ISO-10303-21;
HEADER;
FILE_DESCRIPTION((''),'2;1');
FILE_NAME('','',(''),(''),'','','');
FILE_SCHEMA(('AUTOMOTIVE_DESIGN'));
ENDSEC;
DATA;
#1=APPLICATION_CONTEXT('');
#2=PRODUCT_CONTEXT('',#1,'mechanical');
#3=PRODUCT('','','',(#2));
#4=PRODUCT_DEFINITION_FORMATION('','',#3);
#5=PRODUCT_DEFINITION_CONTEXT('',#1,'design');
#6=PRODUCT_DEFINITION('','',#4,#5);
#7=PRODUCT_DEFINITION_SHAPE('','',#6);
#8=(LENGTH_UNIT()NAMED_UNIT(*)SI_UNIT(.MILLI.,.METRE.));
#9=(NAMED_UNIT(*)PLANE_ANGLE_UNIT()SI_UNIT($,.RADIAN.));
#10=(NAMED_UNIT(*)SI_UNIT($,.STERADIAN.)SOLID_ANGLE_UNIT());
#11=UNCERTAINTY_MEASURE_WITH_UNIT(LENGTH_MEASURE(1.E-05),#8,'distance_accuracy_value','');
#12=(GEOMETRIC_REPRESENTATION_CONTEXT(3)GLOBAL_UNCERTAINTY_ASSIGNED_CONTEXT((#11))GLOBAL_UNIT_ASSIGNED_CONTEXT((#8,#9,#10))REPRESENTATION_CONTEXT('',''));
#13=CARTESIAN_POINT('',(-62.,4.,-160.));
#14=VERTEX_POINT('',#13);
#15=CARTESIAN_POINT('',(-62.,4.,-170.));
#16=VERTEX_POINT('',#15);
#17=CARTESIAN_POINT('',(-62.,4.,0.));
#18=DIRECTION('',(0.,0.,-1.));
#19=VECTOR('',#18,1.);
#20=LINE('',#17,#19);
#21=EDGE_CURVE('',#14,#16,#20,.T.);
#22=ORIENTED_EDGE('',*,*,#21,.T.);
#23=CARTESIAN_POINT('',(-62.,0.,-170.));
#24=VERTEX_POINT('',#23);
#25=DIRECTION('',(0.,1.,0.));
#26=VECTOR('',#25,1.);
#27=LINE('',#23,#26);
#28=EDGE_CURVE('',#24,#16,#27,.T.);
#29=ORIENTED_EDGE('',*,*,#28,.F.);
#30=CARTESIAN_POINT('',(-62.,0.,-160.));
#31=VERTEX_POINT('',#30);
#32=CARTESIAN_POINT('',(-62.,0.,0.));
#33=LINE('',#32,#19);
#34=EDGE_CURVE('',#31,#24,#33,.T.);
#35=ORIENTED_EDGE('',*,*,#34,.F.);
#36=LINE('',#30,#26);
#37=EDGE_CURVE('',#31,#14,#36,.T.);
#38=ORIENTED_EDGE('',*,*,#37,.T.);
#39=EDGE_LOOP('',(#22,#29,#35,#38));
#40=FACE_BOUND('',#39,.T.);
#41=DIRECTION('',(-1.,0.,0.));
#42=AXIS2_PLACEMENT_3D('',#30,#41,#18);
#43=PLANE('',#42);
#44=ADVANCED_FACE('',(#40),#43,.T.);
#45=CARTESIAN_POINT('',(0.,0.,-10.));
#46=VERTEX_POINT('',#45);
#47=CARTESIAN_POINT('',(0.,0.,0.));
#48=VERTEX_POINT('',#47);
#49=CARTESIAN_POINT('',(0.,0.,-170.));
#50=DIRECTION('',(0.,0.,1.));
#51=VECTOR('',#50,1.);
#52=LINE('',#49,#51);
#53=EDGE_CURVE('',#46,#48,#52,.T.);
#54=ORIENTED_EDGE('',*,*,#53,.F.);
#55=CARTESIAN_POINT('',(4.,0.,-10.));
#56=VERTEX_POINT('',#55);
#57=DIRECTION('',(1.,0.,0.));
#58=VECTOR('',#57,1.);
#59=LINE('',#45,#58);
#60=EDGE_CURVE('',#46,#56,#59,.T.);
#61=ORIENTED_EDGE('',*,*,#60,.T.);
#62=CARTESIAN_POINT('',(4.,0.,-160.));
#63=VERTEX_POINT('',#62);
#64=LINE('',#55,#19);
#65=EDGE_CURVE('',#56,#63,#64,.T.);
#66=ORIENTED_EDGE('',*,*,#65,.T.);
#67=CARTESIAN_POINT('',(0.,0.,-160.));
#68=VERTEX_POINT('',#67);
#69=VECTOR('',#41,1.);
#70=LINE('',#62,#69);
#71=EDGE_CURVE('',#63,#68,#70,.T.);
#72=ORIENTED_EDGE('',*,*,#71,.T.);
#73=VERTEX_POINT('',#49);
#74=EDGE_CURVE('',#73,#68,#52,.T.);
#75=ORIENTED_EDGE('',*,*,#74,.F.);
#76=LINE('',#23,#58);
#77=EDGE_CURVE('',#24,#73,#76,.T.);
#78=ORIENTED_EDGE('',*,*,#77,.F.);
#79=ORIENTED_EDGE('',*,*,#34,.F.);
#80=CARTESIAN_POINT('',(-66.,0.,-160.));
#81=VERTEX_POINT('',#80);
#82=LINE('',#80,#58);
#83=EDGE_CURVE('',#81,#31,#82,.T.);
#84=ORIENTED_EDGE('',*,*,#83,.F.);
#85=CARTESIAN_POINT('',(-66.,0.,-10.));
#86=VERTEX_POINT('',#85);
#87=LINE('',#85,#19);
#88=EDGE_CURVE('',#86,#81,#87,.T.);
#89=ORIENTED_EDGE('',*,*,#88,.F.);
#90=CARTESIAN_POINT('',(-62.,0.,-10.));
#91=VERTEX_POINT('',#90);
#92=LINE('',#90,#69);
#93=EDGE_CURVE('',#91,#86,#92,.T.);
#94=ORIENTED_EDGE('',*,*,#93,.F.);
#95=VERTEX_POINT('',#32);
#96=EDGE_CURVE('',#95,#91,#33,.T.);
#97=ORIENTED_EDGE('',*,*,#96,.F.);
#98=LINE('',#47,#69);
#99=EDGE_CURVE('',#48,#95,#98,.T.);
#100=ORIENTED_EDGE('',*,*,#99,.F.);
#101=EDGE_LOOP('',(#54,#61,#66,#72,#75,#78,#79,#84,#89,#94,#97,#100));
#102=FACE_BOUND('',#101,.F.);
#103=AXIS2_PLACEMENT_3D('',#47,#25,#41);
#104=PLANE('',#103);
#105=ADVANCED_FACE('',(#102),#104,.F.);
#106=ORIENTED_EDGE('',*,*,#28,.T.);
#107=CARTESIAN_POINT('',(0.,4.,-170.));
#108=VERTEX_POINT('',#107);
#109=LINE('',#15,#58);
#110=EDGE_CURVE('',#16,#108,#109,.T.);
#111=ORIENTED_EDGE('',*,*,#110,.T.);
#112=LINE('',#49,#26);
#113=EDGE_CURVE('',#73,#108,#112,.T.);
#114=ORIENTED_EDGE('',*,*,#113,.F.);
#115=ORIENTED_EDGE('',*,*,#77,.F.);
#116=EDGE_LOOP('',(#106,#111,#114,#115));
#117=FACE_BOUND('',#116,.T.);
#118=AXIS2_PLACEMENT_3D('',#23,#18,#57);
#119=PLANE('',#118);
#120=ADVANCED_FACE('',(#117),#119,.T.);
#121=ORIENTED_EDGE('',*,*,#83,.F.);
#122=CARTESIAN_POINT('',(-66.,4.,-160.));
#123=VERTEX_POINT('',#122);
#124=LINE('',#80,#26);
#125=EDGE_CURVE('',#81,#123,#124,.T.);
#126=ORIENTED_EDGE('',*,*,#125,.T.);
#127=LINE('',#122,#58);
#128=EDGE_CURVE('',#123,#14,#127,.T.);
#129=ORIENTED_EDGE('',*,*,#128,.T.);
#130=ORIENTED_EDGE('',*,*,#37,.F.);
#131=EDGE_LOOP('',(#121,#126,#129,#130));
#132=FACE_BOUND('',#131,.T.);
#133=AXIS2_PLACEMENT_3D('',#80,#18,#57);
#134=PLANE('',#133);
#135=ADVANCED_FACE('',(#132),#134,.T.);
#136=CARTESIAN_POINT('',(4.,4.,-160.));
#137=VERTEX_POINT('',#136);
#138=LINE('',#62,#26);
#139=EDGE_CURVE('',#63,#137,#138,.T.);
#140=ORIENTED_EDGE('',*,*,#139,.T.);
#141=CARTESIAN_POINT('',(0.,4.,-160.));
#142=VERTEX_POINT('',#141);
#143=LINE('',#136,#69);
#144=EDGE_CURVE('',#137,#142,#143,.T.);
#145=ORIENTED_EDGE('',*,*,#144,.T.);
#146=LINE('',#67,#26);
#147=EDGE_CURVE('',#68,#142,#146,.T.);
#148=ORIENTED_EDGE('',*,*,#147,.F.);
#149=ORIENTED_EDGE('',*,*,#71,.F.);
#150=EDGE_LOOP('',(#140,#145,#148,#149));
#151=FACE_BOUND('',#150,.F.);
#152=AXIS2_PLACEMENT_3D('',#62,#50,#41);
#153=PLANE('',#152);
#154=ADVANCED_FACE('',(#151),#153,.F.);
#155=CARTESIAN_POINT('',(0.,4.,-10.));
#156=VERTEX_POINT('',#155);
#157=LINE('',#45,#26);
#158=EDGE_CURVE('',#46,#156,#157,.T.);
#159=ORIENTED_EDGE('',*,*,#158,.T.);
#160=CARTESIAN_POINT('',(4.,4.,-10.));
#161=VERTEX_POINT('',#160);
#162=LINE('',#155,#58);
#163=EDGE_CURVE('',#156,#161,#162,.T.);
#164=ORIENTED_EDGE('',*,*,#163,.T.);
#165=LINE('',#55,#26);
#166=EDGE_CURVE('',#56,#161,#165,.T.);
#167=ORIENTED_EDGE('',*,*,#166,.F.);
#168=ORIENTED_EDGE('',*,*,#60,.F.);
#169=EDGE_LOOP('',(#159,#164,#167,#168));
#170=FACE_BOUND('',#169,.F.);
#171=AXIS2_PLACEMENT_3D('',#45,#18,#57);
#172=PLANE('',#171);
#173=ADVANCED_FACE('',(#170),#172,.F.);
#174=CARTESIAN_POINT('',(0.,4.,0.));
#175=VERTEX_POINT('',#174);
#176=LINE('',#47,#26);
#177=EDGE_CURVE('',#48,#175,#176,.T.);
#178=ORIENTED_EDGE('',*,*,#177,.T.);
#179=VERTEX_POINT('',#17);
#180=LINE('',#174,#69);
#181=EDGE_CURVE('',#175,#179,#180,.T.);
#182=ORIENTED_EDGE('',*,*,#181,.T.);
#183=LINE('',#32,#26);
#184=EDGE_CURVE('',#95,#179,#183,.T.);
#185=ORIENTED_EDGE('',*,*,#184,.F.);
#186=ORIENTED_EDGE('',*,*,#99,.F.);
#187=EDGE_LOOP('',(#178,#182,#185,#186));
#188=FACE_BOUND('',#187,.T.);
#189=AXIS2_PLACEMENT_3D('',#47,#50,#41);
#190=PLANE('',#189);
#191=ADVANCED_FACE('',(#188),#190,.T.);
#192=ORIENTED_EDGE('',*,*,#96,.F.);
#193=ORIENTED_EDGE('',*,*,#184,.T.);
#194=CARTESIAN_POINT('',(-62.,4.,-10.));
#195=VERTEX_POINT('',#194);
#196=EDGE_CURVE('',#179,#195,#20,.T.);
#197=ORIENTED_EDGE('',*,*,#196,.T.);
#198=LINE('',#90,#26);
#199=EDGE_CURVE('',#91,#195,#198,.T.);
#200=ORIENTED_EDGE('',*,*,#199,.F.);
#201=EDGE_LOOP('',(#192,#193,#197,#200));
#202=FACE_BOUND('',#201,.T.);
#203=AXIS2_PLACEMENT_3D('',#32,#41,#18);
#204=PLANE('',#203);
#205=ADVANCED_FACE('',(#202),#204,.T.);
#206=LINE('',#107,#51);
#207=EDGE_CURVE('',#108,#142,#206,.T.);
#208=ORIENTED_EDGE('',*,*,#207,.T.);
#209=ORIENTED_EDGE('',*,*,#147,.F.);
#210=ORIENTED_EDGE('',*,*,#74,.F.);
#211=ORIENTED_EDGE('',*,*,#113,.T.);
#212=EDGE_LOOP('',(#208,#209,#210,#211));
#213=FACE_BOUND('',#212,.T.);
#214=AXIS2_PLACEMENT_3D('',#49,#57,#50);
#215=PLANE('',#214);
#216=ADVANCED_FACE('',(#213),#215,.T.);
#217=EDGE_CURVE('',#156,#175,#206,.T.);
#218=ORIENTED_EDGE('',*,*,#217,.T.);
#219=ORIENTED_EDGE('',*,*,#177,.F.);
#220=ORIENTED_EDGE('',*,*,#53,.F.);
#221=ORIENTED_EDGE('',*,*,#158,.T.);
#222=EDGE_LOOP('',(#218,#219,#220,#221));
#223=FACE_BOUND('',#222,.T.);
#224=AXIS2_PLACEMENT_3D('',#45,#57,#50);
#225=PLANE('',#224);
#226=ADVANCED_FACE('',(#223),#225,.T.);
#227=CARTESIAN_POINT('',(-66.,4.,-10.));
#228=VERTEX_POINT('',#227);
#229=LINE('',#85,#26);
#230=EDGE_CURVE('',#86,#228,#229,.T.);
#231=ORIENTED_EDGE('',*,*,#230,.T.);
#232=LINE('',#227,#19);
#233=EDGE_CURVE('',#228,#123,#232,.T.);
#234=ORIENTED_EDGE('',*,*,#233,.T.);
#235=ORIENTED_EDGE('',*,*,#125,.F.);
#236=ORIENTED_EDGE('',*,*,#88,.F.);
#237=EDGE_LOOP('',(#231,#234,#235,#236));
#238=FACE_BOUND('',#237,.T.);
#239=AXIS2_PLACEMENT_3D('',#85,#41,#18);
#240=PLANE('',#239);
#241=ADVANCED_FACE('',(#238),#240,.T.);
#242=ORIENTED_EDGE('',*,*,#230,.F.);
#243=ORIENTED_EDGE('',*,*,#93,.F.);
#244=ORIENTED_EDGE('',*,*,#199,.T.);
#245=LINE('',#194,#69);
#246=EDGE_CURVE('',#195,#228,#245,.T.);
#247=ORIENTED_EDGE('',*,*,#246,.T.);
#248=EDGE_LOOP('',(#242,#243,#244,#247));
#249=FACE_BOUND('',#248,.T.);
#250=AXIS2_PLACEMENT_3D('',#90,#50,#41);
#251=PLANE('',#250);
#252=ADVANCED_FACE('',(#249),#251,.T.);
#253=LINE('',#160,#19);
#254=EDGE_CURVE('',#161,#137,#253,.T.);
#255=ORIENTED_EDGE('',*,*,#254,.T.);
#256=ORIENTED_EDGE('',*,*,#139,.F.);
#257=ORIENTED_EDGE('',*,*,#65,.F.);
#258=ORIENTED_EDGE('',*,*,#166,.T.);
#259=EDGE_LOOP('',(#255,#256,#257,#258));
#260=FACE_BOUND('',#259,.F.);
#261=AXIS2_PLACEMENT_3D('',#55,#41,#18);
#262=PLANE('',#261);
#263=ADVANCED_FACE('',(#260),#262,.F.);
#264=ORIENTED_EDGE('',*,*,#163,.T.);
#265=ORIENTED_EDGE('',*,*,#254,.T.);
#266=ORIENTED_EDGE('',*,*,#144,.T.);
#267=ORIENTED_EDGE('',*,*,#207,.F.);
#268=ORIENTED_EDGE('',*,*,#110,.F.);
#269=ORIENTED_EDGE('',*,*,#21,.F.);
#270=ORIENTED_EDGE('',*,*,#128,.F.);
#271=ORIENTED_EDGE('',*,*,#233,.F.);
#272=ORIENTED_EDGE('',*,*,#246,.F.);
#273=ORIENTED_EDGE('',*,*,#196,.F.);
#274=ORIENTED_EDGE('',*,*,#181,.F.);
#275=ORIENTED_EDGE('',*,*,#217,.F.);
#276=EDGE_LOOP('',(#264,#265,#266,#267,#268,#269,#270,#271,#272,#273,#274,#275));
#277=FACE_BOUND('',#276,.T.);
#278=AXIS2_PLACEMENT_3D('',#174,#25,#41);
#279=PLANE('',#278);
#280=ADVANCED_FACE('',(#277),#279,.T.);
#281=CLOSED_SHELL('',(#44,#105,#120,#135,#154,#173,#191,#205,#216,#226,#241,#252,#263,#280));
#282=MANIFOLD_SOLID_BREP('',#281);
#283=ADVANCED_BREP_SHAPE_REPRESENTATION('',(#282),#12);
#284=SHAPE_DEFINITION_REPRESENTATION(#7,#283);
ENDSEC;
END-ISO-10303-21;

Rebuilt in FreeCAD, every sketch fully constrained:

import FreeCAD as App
import Part
import Sketcher
from FreeCAD import Vector
Q = App.Units.Quantity

doc = App.newDocument("Part")
body = doc.addObject("PartDesign::Body", "Body")

sketch1 = body.newObject("Sketcher::SketchObject", "Sketch")
sketch1.AttachmentSupport = (doc.getObject("XZ_Plane"), [""])
sketch1.MapMode = "FlatFace"
sketch1.addGeometry(Part.LineSegment(Vector(-62, 0, 0), Vector(0, 0, 0)), False)
sketch1.addGeometry(Part.LineSegment(Vector(0, 0, 0), Vector(0, -10, 0)), False)
sketch1.addGeometry(Part.LineSegment(Vector(0, -10, 0), Vector(4, -10, 0)), False)
sketch1.addGeometry(Part.LineSegment(Vector(4, -10, 0), Vector(4, -160, 0)), False)
sketch1.addGeometry(Part.LineSegment(Vector(4, -160, 0), Vector(0, -160, 0)), False)
sketch1.addGeometry(Part.LineSegment(Vector(0, -160, 0), Vector(0, -170, 0)), False)
sketch1.addGeometry(Part.LineSegment(Vector(0, -170, 0), Vector(-62, -170, 0)), False)
sketch1.addGeometry(Part.LineSegment(Vector(-62, -170, 0), Vector(-62, -160, 0)), False)
sketch1.addGeometry(Part.LineSegment(Vector(-62, -160, 0), Vector(-66, -160, 0)), False)
sketch1.addGeometry(Part.LineSegment(Vector(-66, -160, 0), Vector(-66, -10, 0)), False)
sketch1.addGeometry(Part.LineSegment(Vector(-66, -10, 0), Vector(-62, -10, 0)), False)
sketch1.addGeometry(Part.LineSegment(Vector(-62, -10, 0), Vector(-62, 0, 0)), False)
sketch1.addConstraint(Sketcher.Constraint("Coincident", 0, 2, 1, 1))
sketch1.addConstraint(Sketcher.Constraint("Coincident", 1, 2, 2, 1))
sketch1.addConstraint(Sketcher.Constraint("Coincident", 2, 2, 3, 1))
sketch1.addConstraint(Sketcher.Constraint("Coincident", 3, 2, 4, 1))
sketch1.addConstraint(Sketcher.Constraint("Coincident", 4, 2, 5, 1))
sketch1.addConstraint(Sketcher.Constraint("Coincident", 5, 2, 6, 1))
sketch1.addConstraint(Sketcher.Constraint("Coincident", 6, 2, 7, 1))
sketch1.addConstraint(Sketcher.Constraint("Coincident", 7, 2, 8, 1))
sketch1.addConstraint(Sketcher.Constraint("Coincident", 8, 2, 9, 1))
sketch1.addConstraint(Sketcher.Constraint("Coincident", 9, 2, 10, 1))
sketch1.addConstraint(Sketcher.Constraint("Coincident", 10, 2, 11, 1))
sketch1.addConstraint(Sketcher.Constraint("Coincident", 11, 2, 0, 1))
sketch1.addConstraint(Sketcher.Constraint("Horizontal", 0))
sketch1.addConstraint(Sketcher.Constraint("Vertical", 1))
sketch1.addConstraint(Sketcher.Constraint("Horizontal", 2))
sketch1.addConstraint(Sketcher.Constraint("Vertical", 3))
sketch1.addConstraint(Sketcher.Constraint("Horizontal", 4))
sketch1.addConstraint(Sketcher.Constraint("Vertical", 5))
sketch1.addConstraint(Sketcher.Constraint("Horizontal", 6))
sketch1.addConstraint(Sketcher.Constraint("Vertical", 7))
sketch1.addConstraint(Sketcher.Constraint("Horizontal", 8))
sketch1.addConstraint(Sketcher.Constraint("Vertical", 9))
sketch1.addConstraint(Sketcher.Constraint("Horizontal", 10))
sketch1.addConstraint(Sketcher.Constraint("Vertical", 11))
sketch1.addConstraint(Sketcher.Constraint("Coincident", 0, 2, -1, 1))
sketch1.addConstraint(Sketcher.Constraint("PointOnObject", 4, 2, -2))
sketch1.addConstraint(Sketcher.Constraint("Horizontal", 4, 2, 7, 2))
sketch1.addConstraint(Sketcher.Constraint("Horizontal", 2, 2, 9, 2))
sketch1.addConstraint(Sketcher.Constraint("Vertical", 7, 2, 10, 2))
sketch1.addConstraint(Sketcher.Constraint("Equal", 4, 8))
sketch1.addConstraint(Sketcher.Constraint("Equal", 1, 5))
sketch1.addConstraint(Sketcher.Constraint("DistanceX", 0, 1, 0, 2, Q("62 mm")))
sketch1.addConstraint(Sketcher.Constraint("DistanceX", 2, 1, 2, 2, Q("4 mm")))
sketch1.addConstraint(Sketcher.Constraint("DistanceY", 1, 2, 1, 1, Q("10 mm")))
sketch1.addConstraint(Sketcher.Constraint("DistanceY", 3, 2, 3, 1, Q("150 mm")))
pad1 = body.newObject("PartDesign::Pad", "Pad")
pad1.Profile = sketch1
pad1.Length = 4
pad1.Reversed = True

doc.recompute()
